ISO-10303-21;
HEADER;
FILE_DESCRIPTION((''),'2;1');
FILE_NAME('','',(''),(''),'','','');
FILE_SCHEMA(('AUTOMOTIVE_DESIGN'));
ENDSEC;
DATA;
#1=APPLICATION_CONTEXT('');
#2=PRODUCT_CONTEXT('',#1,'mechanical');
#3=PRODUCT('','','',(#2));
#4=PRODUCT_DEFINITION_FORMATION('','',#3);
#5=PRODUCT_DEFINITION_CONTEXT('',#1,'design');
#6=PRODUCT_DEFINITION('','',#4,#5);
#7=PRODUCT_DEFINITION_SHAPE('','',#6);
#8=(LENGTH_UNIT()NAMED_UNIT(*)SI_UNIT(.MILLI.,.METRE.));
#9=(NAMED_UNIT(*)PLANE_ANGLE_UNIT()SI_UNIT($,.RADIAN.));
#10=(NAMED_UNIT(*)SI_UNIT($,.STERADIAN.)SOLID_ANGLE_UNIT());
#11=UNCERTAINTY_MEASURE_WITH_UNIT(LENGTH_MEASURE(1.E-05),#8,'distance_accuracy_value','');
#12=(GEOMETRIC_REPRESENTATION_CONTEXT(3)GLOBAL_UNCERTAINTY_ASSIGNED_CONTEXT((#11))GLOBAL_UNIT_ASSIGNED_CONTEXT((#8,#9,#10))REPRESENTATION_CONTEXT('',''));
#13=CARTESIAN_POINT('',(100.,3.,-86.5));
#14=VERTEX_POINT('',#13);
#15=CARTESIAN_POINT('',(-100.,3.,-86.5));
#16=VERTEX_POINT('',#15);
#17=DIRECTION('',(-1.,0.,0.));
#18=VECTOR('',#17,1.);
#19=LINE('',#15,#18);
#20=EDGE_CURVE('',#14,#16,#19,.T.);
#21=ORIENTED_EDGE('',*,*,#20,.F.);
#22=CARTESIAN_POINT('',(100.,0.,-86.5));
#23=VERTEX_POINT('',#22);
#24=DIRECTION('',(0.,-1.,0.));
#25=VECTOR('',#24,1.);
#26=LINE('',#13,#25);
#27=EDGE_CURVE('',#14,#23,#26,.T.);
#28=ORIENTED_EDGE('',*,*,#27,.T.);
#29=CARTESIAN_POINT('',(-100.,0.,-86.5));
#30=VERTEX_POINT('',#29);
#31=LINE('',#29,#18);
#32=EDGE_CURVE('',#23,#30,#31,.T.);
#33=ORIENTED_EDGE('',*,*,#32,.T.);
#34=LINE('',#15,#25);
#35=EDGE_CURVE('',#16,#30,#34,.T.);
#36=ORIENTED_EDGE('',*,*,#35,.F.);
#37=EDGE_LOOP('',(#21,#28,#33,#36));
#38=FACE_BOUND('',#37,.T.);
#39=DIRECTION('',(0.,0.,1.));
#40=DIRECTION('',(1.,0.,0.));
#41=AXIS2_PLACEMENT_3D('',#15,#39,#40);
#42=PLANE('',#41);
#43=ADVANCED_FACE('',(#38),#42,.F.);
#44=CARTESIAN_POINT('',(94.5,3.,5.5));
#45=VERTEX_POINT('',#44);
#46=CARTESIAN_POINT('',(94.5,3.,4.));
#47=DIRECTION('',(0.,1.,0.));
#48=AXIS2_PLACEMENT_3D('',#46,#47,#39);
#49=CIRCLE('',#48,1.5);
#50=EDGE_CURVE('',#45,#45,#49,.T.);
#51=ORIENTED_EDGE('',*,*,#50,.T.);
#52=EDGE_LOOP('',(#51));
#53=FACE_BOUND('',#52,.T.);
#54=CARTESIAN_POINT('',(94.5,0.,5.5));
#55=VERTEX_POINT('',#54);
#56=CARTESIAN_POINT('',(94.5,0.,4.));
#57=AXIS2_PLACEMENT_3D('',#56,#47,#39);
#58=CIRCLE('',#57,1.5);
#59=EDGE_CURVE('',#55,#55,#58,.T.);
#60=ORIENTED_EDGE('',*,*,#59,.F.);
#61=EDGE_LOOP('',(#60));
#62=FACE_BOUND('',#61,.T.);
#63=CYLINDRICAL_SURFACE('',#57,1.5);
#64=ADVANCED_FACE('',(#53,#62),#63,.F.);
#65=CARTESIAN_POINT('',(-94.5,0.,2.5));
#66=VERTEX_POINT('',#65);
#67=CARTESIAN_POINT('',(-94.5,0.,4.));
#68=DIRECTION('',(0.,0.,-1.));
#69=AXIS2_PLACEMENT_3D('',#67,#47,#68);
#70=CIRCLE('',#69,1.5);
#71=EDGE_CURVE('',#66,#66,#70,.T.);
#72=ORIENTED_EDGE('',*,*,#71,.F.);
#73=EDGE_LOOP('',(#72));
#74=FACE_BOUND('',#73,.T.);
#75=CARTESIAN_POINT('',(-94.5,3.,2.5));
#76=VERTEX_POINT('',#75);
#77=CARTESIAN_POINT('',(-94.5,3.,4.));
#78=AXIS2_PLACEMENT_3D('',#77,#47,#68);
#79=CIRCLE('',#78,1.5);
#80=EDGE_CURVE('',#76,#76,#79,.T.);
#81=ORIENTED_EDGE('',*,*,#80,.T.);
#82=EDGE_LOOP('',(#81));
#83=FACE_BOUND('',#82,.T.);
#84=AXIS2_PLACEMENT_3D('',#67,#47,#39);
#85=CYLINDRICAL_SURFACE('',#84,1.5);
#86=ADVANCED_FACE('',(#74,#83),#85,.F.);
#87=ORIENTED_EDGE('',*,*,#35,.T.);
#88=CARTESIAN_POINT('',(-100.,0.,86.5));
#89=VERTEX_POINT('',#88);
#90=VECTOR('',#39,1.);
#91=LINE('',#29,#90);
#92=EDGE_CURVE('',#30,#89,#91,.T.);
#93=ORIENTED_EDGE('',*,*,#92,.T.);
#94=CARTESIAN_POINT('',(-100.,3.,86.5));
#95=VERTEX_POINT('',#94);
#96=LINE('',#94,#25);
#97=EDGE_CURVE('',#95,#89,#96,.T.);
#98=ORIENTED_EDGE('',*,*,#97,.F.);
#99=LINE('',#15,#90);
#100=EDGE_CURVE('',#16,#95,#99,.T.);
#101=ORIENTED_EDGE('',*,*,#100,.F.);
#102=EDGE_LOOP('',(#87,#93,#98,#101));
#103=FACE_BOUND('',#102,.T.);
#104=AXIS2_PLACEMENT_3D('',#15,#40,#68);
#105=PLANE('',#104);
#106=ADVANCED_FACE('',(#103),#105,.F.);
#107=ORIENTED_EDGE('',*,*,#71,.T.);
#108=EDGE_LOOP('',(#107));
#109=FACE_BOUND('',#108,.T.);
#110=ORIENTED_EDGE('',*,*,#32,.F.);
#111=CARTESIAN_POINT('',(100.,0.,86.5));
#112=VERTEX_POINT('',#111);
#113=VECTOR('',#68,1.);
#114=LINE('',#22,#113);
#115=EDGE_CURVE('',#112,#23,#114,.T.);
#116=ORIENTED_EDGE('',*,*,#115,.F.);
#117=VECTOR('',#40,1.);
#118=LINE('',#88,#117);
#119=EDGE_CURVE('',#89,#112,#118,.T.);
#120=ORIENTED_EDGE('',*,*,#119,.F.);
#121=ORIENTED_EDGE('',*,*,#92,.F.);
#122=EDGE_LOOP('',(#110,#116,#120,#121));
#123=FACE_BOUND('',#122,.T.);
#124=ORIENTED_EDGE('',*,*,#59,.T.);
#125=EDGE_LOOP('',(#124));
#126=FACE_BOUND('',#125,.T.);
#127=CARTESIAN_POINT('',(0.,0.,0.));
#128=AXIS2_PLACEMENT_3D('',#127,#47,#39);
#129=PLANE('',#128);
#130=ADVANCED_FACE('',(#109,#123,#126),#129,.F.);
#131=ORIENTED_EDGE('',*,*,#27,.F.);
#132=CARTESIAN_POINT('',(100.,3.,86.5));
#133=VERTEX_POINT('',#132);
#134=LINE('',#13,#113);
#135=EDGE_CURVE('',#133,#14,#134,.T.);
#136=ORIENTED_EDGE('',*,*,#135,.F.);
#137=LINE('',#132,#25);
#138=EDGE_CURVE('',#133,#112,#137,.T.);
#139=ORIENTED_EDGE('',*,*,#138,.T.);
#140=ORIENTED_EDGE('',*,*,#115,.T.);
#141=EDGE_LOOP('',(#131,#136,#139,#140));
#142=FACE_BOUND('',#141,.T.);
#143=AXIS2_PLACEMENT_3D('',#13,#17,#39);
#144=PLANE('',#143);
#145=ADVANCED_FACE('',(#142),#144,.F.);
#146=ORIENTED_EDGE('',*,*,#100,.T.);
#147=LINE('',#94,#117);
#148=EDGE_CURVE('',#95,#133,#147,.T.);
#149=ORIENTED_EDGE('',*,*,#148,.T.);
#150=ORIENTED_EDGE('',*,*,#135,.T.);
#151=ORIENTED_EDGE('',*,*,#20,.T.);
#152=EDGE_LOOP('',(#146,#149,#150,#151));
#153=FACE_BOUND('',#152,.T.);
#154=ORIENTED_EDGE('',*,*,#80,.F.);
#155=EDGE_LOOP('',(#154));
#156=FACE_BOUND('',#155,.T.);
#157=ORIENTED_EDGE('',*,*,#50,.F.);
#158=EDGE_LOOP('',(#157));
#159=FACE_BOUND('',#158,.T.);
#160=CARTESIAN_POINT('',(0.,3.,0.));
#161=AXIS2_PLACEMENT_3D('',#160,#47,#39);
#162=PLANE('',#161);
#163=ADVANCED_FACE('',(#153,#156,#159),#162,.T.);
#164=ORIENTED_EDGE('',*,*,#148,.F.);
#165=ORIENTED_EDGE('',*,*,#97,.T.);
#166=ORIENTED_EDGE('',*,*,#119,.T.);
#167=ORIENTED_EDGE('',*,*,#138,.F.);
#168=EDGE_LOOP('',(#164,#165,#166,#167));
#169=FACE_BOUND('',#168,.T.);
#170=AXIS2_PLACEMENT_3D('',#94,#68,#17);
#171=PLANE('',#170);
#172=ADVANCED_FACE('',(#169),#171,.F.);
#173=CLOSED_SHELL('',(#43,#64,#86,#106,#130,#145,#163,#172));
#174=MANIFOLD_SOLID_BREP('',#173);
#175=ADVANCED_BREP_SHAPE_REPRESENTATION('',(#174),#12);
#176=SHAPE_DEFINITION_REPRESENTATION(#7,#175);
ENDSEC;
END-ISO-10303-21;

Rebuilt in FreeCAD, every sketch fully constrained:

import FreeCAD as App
import Part
import Sketcher
Q = App.Units.Quantity


def add_polygon(sketch, points):
    """Adds a closed chain of lines whose ends are joined by coincident constraints."""
    first, n = sketch.GeometryCount, len(points)
    for a, b in zip(points, points[1:] + points[:1]):
        sketch.addGeometry(Part.LineSegment(App.Vector(*a, 0), App.Vector(*b, 0)), False)
    for i in range(n):
        sketch.addConstraint(Sketcher.Constraint("Coincident", first + i, 2, first + (i + 1) % n, 1))

doc = App.newDocument("Part")
body = doc.addObject("PartDesign::Body", "Body")

# Sketch on XZ plane
sketch1 = body.newObject("Sketcher::SketchObject", "Sketch")
sketch1.AttachmentSupport = (doc.getObject("XZ_Plane"), [""])
sketch1.MapMode = "FlatFace"
add_polygon(sketch1, [(-100, -86.5), (-100, 86.5), (100, 86.5), (100, -86.5)])  # lines 0-3
sketch1.addConstraint([
    Sketcher.Constraint("Vertical", 0),
    Sketcher.Constraint("Horizontal", 1),
    Sketcher.Constraint("Vertical", 2),
    Sketcher.Constraint("Horizontal", 3),
    Sketcher.Constraint("Symmetric", 0, 2, 2, 2, -1, 1),
    Sketcher.Constraint("DistanceX", 1, 1, 1, 2, Q("200 mm")),
    Sketcher.Constraint("DistanceY", 0, 1, 0, 2, Q("173 mm")),
])
pad1 = body.newObject("PartDesign::Pad", "Pad")
pad1.Profile = sketch1
pad1.Length = 3
pad1.Reversed = True

# Sketch on XZ plane
sketch2 = body.newObject("Sketcher::SketchObject", "Sketch001")
sketch2.AttachmentSupport = (doc.getObject("XZ_Plane"), [""])
sketch2.MapMode = "FlatFace"
sketch2.AttachmentOffset = App.Placement(App.Vector(0, 0, -3), App.Rotation())
sketch2.addGeometry([
    Part.Circle(App.Vector(94.5, 4, 0), App.Vector(0, 0, 1), 1.5),
    Part.Circle(App.Vector(-94.5, 4, 0), App.Vector(0, 0, 1), 1.5),
], False)
sketch2.addConstraint([
    Sketcher.Constraint("Equal", 0, 1),
    Sketcher.Constraint("Symmetric", 0, 3, 1, 3, -2),
    Sketcher.Constraint("Diameter", 0, Q("3 mm")),
    Sketcher.Constraint("DistanceY", -1, 1, 0, 3, Q("4 mm")),
    Sketcher.Constraint("DistanceX", 1, 3, 0, 3, Q("189 mm")),
])
pocket1 = body.newObject("PartDesign::Pocket", "Pocket")
pocket1.Profile = sketch2
pocket1.Type = "ThroughAll"
pocket1.Reversed = True

doc.recompute()
